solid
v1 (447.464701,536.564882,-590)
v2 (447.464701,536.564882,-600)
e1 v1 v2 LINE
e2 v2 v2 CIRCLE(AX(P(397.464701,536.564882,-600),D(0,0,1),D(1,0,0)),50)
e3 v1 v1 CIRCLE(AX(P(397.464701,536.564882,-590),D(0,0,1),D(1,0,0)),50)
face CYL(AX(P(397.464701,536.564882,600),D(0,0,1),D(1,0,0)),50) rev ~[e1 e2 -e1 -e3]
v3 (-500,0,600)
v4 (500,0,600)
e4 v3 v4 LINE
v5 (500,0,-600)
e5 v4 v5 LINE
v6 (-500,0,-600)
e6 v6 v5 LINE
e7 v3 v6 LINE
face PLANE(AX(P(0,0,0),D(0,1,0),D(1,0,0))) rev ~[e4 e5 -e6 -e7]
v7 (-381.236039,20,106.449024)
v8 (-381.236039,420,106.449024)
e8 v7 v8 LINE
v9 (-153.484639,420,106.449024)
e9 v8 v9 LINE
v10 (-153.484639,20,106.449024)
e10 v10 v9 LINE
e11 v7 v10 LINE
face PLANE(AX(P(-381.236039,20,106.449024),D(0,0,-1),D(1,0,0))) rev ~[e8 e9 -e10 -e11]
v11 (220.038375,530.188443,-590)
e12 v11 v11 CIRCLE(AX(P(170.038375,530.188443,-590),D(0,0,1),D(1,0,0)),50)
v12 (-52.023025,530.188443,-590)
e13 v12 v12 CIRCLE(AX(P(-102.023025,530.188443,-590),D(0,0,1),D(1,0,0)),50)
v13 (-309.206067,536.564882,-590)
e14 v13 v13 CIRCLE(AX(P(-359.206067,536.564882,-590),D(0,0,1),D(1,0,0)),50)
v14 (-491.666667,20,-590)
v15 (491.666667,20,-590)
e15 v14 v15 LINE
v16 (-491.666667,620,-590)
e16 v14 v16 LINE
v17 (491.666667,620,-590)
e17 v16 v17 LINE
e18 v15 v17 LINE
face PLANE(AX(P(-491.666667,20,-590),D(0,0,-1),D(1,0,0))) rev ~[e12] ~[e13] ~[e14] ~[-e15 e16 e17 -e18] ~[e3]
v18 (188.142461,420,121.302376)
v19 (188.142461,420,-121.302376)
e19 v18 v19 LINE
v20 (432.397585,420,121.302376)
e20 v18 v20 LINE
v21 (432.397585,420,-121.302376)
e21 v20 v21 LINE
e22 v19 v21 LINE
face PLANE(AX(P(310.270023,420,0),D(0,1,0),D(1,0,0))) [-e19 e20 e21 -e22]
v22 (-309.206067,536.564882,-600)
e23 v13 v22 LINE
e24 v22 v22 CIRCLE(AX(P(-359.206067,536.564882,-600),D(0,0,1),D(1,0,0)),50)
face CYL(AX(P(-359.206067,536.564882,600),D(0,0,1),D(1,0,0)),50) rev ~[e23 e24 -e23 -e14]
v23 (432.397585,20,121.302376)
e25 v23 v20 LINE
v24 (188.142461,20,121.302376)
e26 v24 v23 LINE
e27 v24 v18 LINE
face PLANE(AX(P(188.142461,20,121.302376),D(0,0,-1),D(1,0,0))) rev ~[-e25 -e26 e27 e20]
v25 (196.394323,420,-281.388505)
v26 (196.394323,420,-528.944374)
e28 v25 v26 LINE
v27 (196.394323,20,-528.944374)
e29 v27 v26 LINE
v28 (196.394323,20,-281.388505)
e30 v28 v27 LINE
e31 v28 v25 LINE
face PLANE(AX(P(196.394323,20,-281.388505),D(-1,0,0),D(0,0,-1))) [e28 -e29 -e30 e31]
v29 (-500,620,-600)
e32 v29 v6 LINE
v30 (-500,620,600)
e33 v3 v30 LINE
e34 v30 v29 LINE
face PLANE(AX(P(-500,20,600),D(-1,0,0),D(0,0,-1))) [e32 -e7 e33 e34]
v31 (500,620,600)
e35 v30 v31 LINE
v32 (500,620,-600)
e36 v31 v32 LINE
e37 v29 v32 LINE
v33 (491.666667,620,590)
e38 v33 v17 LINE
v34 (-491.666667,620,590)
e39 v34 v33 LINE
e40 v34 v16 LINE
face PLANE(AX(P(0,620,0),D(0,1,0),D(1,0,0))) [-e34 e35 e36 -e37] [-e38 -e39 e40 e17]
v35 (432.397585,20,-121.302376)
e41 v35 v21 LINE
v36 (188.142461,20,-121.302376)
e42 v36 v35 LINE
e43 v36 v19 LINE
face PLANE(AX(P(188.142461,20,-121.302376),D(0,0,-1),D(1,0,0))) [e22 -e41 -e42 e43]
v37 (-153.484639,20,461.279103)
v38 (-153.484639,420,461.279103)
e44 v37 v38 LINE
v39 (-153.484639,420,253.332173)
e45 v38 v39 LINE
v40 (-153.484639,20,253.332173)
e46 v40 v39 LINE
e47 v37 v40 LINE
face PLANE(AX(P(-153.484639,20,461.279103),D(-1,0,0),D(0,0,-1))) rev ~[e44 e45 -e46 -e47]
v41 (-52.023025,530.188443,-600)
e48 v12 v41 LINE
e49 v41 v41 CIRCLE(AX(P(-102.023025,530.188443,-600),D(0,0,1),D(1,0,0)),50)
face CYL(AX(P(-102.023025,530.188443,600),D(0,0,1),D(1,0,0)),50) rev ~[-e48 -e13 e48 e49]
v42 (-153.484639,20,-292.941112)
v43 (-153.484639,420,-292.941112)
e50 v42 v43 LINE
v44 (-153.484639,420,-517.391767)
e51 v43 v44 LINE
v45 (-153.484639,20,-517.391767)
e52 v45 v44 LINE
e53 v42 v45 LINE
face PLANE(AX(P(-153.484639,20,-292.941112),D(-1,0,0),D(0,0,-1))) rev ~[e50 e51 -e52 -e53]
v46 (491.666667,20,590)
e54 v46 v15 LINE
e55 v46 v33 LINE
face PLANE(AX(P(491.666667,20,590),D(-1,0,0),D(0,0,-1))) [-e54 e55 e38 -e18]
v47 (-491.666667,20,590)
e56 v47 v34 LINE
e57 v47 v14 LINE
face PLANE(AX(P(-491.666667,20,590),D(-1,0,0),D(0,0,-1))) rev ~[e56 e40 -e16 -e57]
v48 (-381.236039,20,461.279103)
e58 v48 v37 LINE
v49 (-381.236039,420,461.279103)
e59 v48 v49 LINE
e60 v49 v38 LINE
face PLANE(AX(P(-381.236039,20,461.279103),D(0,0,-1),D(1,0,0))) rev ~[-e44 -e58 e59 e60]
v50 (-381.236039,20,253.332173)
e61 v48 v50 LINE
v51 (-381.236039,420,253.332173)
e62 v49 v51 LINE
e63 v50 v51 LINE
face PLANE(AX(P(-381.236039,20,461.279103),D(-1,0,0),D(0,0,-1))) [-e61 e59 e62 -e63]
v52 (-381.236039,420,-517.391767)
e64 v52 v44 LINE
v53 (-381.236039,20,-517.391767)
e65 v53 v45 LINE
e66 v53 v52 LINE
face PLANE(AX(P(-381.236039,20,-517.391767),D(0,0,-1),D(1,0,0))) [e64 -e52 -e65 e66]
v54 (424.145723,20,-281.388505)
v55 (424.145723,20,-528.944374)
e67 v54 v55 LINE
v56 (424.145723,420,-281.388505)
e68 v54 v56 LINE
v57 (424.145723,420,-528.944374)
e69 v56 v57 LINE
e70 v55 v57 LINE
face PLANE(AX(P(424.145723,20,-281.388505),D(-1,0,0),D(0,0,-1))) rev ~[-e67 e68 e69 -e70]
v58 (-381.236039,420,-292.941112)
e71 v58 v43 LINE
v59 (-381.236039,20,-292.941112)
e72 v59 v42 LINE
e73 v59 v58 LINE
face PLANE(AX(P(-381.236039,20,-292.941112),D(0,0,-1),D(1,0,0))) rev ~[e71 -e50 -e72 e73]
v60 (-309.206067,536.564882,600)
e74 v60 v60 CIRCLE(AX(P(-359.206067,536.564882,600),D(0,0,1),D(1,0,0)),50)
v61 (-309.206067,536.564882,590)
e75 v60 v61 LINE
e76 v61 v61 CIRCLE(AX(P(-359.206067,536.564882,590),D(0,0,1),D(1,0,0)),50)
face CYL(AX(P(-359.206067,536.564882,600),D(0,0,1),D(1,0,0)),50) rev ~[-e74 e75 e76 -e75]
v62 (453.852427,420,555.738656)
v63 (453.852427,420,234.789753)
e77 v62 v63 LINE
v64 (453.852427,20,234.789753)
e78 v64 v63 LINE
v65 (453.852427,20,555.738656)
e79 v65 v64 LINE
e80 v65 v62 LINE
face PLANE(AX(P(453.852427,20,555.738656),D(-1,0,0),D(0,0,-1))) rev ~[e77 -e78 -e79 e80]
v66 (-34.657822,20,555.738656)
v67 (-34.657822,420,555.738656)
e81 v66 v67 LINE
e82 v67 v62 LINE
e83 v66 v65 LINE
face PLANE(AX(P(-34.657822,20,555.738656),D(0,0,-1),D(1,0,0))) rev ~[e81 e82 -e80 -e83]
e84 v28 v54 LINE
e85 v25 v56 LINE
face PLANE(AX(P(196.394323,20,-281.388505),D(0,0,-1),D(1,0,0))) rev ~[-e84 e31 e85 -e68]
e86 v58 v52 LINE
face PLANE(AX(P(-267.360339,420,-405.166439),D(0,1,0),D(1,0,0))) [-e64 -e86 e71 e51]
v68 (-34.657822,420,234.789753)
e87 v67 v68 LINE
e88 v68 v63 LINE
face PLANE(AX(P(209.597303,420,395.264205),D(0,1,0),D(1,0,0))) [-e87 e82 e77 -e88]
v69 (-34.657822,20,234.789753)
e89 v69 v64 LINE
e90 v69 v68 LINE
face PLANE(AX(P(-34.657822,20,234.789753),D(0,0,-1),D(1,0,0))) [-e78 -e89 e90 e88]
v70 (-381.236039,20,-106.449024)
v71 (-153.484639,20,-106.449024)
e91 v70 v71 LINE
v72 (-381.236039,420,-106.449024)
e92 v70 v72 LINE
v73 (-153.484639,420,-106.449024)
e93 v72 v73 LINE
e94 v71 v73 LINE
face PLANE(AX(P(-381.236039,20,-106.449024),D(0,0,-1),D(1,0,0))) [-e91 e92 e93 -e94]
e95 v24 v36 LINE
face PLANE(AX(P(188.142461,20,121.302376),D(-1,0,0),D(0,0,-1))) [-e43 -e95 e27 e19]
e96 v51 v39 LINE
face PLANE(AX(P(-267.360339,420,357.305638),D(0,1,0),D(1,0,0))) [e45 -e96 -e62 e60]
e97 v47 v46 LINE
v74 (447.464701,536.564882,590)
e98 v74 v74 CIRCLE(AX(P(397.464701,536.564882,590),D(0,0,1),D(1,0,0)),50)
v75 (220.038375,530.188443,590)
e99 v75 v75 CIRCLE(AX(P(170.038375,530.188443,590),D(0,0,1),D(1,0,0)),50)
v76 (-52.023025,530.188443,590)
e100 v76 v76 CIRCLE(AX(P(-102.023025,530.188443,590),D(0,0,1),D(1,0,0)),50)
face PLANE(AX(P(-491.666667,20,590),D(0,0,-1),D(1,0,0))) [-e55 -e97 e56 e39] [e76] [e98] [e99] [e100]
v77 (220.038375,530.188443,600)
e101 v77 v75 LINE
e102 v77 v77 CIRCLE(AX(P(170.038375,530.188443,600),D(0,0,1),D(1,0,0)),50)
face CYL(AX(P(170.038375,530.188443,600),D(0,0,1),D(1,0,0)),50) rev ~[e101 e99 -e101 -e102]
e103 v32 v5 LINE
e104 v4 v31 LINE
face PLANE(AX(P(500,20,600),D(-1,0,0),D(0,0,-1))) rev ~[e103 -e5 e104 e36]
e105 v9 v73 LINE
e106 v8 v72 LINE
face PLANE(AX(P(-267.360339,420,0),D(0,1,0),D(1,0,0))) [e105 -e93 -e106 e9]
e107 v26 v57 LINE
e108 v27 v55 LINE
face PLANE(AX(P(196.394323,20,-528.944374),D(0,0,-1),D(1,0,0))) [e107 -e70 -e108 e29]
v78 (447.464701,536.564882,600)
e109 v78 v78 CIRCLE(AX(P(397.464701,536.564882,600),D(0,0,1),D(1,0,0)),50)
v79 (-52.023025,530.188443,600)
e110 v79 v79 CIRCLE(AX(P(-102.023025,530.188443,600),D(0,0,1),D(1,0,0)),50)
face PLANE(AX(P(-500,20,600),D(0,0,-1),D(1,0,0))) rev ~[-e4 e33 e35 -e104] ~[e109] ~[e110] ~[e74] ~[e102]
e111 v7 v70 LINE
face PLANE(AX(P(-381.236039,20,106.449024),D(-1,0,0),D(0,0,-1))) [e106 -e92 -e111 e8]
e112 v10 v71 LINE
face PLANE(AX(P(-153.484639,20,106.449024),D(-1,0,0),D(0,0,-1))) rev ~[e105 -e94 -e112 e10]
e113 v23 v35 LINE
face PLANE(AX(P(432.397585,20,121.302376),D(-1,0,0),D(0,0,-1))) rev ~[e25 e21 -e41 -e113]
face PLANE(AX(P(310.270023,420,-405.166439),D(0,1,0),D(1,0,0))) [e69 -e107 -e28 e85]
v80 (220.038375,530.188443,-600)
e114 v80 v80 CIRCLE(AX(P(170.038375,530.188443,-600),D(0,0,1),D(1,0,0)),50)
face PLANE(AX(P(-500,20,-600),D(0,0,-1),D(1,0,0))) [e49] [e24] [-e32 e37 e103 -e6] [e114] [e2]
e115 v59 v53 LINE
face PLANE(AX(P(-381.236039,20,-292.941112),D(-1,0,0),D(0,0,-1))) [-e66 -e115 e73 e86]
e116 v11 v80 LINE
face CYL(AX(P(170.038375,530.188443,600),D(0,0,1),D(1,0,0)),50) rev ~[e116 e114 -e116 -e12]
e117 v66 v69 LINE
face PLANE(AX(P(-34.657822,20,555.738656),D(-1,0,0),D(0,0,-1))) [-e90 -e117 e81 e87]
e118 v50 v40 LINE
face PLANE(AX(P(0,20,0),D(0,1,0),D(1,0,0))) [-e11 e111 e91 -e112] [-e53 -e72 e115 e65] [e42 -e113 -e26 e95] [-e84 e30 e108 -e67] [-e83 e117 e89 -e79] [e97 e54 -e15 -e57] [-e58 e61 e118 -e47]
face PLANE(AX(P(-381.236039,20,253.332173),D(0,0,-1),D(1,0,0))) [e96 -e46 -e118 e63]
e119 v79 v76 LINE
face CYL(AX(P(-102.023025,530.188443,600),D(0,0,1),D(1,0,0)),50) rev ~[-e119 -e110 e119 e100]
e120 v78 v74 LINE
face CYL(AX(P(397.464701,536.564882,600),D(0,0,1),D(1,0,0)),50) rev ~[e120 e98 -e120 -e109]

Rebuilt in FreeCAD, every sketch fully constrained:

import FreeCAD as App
import Part
import Sketcher

V = App.Vector


def add_polygon(sketch, points):
    """Adds a closed chain of lines whose ends are joined by coincident constraints."""
    first, n = sketch.GeometryCount, len(points)
    for a, b in zip(points, points[1:] + points[:1]):
        sketch.addGeometry(Part.LineSegment(App.Vector(*a, 0), App.Vector(*b, 0)), False)
    for i in range(n):
        sketch.addConstraint(Sketcher.Constraint("Coincident", first + i, 2, first + (i + 1) % n, 1))

doc = App.newDocument("Part")
body = doc.addObject("PartDesign::Body", "Body")

sketch1 = body.newObject("Sketcher::SketchObject", "Sketch")
sketch1.AttachmentSupport = (doc.getObject("XZ_Plane"), [""])
sketch1.MapMode = "FlatFace"
add_polygon(sketch1, [(-500, -600), (-500, 600), (500, 600), (500, -600)])
sketch1.addConstraint(Sketcher.Constraint("Vertical", 0))
sketch1.addConstraint(Sketcher.Constraint("Horizontal", 1))
sketch1.addConstraint(Sketcher.Constraint("Vertical", 2))
sketch1.addConstraint(Sketcher.Constraint("Horizontal", 3))
sketch1.addConstraint(Sketcher.Constraint("Symmetric", 0, 2, 2, 2, -1, 1))
sketch1.addConstraint(Sketcher.Constraint("DistanceX", 1, 1, 1, 2, 1000.0))
sketch1.addConstraint(Sketcher.Constraint("DistanceY", 0, 1, 0, 2, 1200.0))
pad1 = body.newObject("PartDesign::Pad", "Pad")
pad1.Profile = sketch1
pad1.Length = 20
pad1.Reversed = True

sketch2 = body.newObject("Sketcher::SketchObject", "Sketch001")
sketch2.AttachmentSupport = (doc.getObject("XZ_Plane"), [""])
sketch2.MapMode = "FlatFace"
sketch2.AttachmentOffset = App.Placement(V(0, 0, -20), App.Rotation())
add_polygon(sketch2, [(-500, -600), (-500, 600), (500, 600), (500, -600)])
add_polygon(sketch2, [(491.666667, 590), (-491.666667, 590), (-491.666667, -590), (491.666667, -590)])
sketch2.addConstraint(Sketcher.Constraint("Vertical", 0))
sketch2.addConstraint(Sketcher.Constraint("Horizontal", 1))
sketch2.addConstraint(Sketcher.Constraint("Vertical", 2))
sketch2.addConstraint(Sketcher.Constraint("Horizontal", 3))
sketch2.addConstraint(Sketcher.Constraint("Horizontal", 4))
sketch2.addConstraint(Sketcher.Constraint("Vertical", 5))
sketch2.addConstraint(Sketcher.Constraint("Horizontal", 6))
sketch2.addConstraint(Sketcher.Constraint("Vertical", 7))
sketch2.addConstraint(Sketcher.Constraint("Symmetric", 0, 2, 2, 2, -1, 1))
sketch2.addConstraint(Sketcher.Constraint("Symmetric", 4, 2, 6, 2, -1, 1))
sketch2.addConstraint(Sketcher.Constraint("DistanceX", 1, 1, 1, 2, 1000.0))
sketch2.addConstraint(Sketcher.Constraint("DistanceY", 0, 1, 0, 2, 1200.0))
sketch2.addConstraint(Sketcher.Constraint("DistanceY", 5, 2, 5, 1, 1180.0))
sketch2.addConstraint(Sketcher.Constraint("DistanceX", 4, 2, 4, 1, 983.333333))
pad2 = body.newObject("PartDesign::Pad", "Pad001")
pad2.Profile = sketch2
pad2.Length = 600
pad2.Reversed = True

sketch3 = body.newObject("Sketcher::SketchObject", "Sketch002")
sketch3.AttachmentSupport = (doc.getObject("XZ_Plane"), [""])
sketch3.MapMode = "FlatFace"
sketch3.AttachmentOffset = App.Placement(V(0, 0, -20), App.Rotation())
add_polygon(sketch3, [(-381.236039, -517.391767), (-381.236039, -292.941112), (-153.484639, -292.941112), (-153.484639, -517.391767)])
add_polygon(sketch3, [(196.394323, -528.944374), (196.394323, -281.388505), (424.145723, -281.388505), (424.145723, -528.944374)])
add_polygon(sketch3, [(-381.236039, -106.449024), (-381.236039, 106.449024), (-153.484639, 106.449024), (-153.484639, -106.449024)])
add_polygon(sketch3, [(188.142461, -121.302376), (188.142461, 121.302376), (432.397585, 121.302376), (432.397585, -121.302376)])
add_polygon(sketch3, [(-381.236039, 253.332173), (-381.236039, 461.279103), (-153.484639, 461.279103), (-153.484639, 253.332173)])
add_polygon(sketch3, [(-34.657822, 234.789753), (-34.657822, 555.738656), (453.852427, 555.738656), (453.852427, 234.789753)])
sketch3.addConstraint(Sketcher.Constraint("Vertical", 0))
sketch3.addConstraint(Sketcher.Constraint("Horizontal", 1))
sketch3.addConstraint(Sketcher.Constraint("Vertical", 2))
sketch3.addConstraint(Sketcher.Constraint("Horizontal", 3))
sketch3.addConstraint(Sketcher.Constraint("Vertical", 4))
sketch3.addConstraint(Sketcher.Constraint("Horizontal", 5))
sketch3.addConstraint(Sketcher.Constraint("Vertical", 6))
sketch3.addConstraint(Sketcher.Constraint("Horizontal", 7))
sketch3.addConstraint(Sketcher.Constraint("Vertical", 8))
sketch3.addConstraint(Sketcher.Constraint("Horizontal", 9))
sketch3.addConstraint(Sketcher.Constraint("Vertical", 10))
sketch3.addConstraint(Sketcher.Constraint("Horizontal", 11))
sketch3.addConstraint(Sketcher.Constraint("Vertical", 12))
sketch3.addConstraint(Sketcher.Constraint("Horizontal", 13))
sketch3.addConstraint(Sketcher.Constraint("Vertical", 14))
sketch3.addConstraint(Sketcher.Constraint("Horizontal", 15))
sketch3.addConstraint(Sketcher.Constraint("Vertical", 16))
sketch3.addConstraint(Sketcher.Constraint("Horizontal", 17))
sketch3.addConstraint(Sketcher.Constraint("Vertical", 18))
sketch3.addConstraint(Sketcher.Constraint("Horizontal", 19))
sketch3.addConstraint(Sketcher.Constraint("Vertical", 20))
sketch3.addConstraint(Sketcher.Constraint("Horizontal", 21))
sketch3.addConstraint(Sketcher.Constraint("Vertical", 22))
sketch3.addConstraint(Sketcher.Constraint("Horizontal", 23))
sketch3.addConstraint(Sketcher.Constraint("Vertical", 3, 2, 8, 2))
sketch3.addConstraint(Sketcher.Constraint("Vertical", 2, 2, 9, 2))
sketch3.addConstraint(Sketcher.Constraint("Vertical", 11, 2, 16, 2))
sketch3.addConstraint(Sketcher.Constraint("Vertical", 10, 2, 17, 2))
sketch3.addConstraint(Sketcher.Constraint("Equal", 3, 5))
sketch3.addConstraint(Sketcher.Constraint("DistanceX", 1, 1, 1, 2, 227.7514))
sketch3.addConstraint(Sketcher.Constraint("DistanceY", 6, 2, 14, 2, 407.641998))
sketch3.addConstraint(Sketcher.Constraint("DistanceX", 21, 1, 21, 2, 488.510249))
sketch3.addConstraint(Sketcher.Constraint("DistanceY", 4, 1, 4, 2, 247.555869))
sketch3.addConstraint(Sketcher.Constraint("DistanceY", 12, 1, 12, 2, 242.604752))
sketch3.addConstraint(Sketcher.Constraint("DistanceY", 16, 1, 16, 2, 207.94693))
sketch3.addConstraint(Sketcher.Constraint("DistanceX", 9, 2, 12, 2, 341.6271))
sketch3.addConstraint(Sketcher.Constraint("DistanceY", 10, 2, 12, 2, 227.7514))
sketch3.addConstraint(Sketcher.Constraint("DistanceX", 13, 1, 13, 2, 244.255124))
sketch3.addConstraint(Sketcher.Constraint("DistanceY", 0, 1, 0, 2, 224.450655))
sketch3.addConstraint(Sketcher.Constraint("DistanceY", 8, 1, 8, 2, 212.898048))
sketch3.addConstraint(Sketcher.Constraint("DistanceY", 20, 1, 20, 2, 320.948903))
sketch3.addConstraint(Sketcher.Constraint("DistanceX", 0, 2, -1, 1, 381.236039))
sketch3.addConstraint(Sketcher.Constraint("DistanceX", 20, 2, -1, 1, 34.657822))
sketch3.addConstraint(Sketcher.Constraint("DistanceX", 1, 2, 4, 2, 349.878962))
sketch3.addConstraint(Sketcher.Constraint("DistanceY", 3, 2, 8, 2, 623.840791))
sketch3.addConstraint(Sketcher.Constraint("DistanceY", 8, 2, 16, 2, 354.830079))
sketch3.addConstraint(Sketcher.Constraint("DistanceY", 13, 2, 21, 2, 434.43628))
sketch3.addConstraint(Sketcher.Constraint("DistanceY", 0, 2, -1, 1, 292.941112))
pad3 = body.newObject("PartDesign::Pad", "Pad002")
pad3.Profile = sketch3
pad3.Length = 400
pad3.Reversed = True

sketch4 = body.newObject("Sketcher::SketchObject", "Sketch003")
sketch4.AttachmentSupport = (doc.getObject("XY_Plane"), [""])
sketch4.MapMode = "FlatFace"
sketch4.AttachmentOffset = App.Placement(V(0, 0, 600), App.Rotation())
sketch4.addGeometry(Part.Circle(V(-359.206067, 536.564882, 0), V(0, 0, 1), 50), False)
sketch4.addGeometry(Part.Circle(V(-102.023025, 530.188443, 0), V(0, 0, 1), 50), False)
sketch4.addGeometry(Part.Circle(V(170.038375, 530.188443, 0), V(0, 0, 1), 50), False)
sketch4.addGeometry(Part.Circle(V(397.464701, 536.564882, 0), V(0, 0, 1), 50), False)
sketch4.addConstraint(Sketcher.Constraint("Equal", 0, 1))
sketch4.addConstraint(Sketcher.Constraint("Equal", 1, 2))
sketch4.addConstraint(Sketcher.Constraint("Equal", 2, 3))
sketch4.addConstraint(Sketcher.Constraint("Horizontal", 1, 3, 2, 3))
sketch4.addConstraint(Sketcher.Constraint("Horizontal", 0, 3, 3, 3))
sketch4.addConstraint(Sketcher.Constraint("Diameter", 0, 100.0))
sketch4.addConstraint(Sketcher.Constraint("DistanceX", -1, 1, 3, 3, 397.464701))
sketch4.addConstraint(Sketcher.Constraint("DistanceX", 1, 3, 2, 3, 272.0614))
sketch4.addConstraint(Sketcher.Constraint("DistanceY", -1, 1, 0, 3, 536.564882))
sketch4.addConstraint(Sketcher.Constraint("DistanceX", 0, 3, 1, 3, 257.183042))
sketch4.addConstraint(Sketcher.Constraint("DistanceY", 1, 3, 0, 3, 6.376439))
sketch4.addConstraint(Sketcher.Constraint("DistanceX", 0, 3, 3, 3, 756.670768))
pocket1 = body.newObject("PartDesign::Pocket", "Pocket")
pocket1.Profile = sketch4
pocket1.Type = "ThroughAll"

doc.recompute()
